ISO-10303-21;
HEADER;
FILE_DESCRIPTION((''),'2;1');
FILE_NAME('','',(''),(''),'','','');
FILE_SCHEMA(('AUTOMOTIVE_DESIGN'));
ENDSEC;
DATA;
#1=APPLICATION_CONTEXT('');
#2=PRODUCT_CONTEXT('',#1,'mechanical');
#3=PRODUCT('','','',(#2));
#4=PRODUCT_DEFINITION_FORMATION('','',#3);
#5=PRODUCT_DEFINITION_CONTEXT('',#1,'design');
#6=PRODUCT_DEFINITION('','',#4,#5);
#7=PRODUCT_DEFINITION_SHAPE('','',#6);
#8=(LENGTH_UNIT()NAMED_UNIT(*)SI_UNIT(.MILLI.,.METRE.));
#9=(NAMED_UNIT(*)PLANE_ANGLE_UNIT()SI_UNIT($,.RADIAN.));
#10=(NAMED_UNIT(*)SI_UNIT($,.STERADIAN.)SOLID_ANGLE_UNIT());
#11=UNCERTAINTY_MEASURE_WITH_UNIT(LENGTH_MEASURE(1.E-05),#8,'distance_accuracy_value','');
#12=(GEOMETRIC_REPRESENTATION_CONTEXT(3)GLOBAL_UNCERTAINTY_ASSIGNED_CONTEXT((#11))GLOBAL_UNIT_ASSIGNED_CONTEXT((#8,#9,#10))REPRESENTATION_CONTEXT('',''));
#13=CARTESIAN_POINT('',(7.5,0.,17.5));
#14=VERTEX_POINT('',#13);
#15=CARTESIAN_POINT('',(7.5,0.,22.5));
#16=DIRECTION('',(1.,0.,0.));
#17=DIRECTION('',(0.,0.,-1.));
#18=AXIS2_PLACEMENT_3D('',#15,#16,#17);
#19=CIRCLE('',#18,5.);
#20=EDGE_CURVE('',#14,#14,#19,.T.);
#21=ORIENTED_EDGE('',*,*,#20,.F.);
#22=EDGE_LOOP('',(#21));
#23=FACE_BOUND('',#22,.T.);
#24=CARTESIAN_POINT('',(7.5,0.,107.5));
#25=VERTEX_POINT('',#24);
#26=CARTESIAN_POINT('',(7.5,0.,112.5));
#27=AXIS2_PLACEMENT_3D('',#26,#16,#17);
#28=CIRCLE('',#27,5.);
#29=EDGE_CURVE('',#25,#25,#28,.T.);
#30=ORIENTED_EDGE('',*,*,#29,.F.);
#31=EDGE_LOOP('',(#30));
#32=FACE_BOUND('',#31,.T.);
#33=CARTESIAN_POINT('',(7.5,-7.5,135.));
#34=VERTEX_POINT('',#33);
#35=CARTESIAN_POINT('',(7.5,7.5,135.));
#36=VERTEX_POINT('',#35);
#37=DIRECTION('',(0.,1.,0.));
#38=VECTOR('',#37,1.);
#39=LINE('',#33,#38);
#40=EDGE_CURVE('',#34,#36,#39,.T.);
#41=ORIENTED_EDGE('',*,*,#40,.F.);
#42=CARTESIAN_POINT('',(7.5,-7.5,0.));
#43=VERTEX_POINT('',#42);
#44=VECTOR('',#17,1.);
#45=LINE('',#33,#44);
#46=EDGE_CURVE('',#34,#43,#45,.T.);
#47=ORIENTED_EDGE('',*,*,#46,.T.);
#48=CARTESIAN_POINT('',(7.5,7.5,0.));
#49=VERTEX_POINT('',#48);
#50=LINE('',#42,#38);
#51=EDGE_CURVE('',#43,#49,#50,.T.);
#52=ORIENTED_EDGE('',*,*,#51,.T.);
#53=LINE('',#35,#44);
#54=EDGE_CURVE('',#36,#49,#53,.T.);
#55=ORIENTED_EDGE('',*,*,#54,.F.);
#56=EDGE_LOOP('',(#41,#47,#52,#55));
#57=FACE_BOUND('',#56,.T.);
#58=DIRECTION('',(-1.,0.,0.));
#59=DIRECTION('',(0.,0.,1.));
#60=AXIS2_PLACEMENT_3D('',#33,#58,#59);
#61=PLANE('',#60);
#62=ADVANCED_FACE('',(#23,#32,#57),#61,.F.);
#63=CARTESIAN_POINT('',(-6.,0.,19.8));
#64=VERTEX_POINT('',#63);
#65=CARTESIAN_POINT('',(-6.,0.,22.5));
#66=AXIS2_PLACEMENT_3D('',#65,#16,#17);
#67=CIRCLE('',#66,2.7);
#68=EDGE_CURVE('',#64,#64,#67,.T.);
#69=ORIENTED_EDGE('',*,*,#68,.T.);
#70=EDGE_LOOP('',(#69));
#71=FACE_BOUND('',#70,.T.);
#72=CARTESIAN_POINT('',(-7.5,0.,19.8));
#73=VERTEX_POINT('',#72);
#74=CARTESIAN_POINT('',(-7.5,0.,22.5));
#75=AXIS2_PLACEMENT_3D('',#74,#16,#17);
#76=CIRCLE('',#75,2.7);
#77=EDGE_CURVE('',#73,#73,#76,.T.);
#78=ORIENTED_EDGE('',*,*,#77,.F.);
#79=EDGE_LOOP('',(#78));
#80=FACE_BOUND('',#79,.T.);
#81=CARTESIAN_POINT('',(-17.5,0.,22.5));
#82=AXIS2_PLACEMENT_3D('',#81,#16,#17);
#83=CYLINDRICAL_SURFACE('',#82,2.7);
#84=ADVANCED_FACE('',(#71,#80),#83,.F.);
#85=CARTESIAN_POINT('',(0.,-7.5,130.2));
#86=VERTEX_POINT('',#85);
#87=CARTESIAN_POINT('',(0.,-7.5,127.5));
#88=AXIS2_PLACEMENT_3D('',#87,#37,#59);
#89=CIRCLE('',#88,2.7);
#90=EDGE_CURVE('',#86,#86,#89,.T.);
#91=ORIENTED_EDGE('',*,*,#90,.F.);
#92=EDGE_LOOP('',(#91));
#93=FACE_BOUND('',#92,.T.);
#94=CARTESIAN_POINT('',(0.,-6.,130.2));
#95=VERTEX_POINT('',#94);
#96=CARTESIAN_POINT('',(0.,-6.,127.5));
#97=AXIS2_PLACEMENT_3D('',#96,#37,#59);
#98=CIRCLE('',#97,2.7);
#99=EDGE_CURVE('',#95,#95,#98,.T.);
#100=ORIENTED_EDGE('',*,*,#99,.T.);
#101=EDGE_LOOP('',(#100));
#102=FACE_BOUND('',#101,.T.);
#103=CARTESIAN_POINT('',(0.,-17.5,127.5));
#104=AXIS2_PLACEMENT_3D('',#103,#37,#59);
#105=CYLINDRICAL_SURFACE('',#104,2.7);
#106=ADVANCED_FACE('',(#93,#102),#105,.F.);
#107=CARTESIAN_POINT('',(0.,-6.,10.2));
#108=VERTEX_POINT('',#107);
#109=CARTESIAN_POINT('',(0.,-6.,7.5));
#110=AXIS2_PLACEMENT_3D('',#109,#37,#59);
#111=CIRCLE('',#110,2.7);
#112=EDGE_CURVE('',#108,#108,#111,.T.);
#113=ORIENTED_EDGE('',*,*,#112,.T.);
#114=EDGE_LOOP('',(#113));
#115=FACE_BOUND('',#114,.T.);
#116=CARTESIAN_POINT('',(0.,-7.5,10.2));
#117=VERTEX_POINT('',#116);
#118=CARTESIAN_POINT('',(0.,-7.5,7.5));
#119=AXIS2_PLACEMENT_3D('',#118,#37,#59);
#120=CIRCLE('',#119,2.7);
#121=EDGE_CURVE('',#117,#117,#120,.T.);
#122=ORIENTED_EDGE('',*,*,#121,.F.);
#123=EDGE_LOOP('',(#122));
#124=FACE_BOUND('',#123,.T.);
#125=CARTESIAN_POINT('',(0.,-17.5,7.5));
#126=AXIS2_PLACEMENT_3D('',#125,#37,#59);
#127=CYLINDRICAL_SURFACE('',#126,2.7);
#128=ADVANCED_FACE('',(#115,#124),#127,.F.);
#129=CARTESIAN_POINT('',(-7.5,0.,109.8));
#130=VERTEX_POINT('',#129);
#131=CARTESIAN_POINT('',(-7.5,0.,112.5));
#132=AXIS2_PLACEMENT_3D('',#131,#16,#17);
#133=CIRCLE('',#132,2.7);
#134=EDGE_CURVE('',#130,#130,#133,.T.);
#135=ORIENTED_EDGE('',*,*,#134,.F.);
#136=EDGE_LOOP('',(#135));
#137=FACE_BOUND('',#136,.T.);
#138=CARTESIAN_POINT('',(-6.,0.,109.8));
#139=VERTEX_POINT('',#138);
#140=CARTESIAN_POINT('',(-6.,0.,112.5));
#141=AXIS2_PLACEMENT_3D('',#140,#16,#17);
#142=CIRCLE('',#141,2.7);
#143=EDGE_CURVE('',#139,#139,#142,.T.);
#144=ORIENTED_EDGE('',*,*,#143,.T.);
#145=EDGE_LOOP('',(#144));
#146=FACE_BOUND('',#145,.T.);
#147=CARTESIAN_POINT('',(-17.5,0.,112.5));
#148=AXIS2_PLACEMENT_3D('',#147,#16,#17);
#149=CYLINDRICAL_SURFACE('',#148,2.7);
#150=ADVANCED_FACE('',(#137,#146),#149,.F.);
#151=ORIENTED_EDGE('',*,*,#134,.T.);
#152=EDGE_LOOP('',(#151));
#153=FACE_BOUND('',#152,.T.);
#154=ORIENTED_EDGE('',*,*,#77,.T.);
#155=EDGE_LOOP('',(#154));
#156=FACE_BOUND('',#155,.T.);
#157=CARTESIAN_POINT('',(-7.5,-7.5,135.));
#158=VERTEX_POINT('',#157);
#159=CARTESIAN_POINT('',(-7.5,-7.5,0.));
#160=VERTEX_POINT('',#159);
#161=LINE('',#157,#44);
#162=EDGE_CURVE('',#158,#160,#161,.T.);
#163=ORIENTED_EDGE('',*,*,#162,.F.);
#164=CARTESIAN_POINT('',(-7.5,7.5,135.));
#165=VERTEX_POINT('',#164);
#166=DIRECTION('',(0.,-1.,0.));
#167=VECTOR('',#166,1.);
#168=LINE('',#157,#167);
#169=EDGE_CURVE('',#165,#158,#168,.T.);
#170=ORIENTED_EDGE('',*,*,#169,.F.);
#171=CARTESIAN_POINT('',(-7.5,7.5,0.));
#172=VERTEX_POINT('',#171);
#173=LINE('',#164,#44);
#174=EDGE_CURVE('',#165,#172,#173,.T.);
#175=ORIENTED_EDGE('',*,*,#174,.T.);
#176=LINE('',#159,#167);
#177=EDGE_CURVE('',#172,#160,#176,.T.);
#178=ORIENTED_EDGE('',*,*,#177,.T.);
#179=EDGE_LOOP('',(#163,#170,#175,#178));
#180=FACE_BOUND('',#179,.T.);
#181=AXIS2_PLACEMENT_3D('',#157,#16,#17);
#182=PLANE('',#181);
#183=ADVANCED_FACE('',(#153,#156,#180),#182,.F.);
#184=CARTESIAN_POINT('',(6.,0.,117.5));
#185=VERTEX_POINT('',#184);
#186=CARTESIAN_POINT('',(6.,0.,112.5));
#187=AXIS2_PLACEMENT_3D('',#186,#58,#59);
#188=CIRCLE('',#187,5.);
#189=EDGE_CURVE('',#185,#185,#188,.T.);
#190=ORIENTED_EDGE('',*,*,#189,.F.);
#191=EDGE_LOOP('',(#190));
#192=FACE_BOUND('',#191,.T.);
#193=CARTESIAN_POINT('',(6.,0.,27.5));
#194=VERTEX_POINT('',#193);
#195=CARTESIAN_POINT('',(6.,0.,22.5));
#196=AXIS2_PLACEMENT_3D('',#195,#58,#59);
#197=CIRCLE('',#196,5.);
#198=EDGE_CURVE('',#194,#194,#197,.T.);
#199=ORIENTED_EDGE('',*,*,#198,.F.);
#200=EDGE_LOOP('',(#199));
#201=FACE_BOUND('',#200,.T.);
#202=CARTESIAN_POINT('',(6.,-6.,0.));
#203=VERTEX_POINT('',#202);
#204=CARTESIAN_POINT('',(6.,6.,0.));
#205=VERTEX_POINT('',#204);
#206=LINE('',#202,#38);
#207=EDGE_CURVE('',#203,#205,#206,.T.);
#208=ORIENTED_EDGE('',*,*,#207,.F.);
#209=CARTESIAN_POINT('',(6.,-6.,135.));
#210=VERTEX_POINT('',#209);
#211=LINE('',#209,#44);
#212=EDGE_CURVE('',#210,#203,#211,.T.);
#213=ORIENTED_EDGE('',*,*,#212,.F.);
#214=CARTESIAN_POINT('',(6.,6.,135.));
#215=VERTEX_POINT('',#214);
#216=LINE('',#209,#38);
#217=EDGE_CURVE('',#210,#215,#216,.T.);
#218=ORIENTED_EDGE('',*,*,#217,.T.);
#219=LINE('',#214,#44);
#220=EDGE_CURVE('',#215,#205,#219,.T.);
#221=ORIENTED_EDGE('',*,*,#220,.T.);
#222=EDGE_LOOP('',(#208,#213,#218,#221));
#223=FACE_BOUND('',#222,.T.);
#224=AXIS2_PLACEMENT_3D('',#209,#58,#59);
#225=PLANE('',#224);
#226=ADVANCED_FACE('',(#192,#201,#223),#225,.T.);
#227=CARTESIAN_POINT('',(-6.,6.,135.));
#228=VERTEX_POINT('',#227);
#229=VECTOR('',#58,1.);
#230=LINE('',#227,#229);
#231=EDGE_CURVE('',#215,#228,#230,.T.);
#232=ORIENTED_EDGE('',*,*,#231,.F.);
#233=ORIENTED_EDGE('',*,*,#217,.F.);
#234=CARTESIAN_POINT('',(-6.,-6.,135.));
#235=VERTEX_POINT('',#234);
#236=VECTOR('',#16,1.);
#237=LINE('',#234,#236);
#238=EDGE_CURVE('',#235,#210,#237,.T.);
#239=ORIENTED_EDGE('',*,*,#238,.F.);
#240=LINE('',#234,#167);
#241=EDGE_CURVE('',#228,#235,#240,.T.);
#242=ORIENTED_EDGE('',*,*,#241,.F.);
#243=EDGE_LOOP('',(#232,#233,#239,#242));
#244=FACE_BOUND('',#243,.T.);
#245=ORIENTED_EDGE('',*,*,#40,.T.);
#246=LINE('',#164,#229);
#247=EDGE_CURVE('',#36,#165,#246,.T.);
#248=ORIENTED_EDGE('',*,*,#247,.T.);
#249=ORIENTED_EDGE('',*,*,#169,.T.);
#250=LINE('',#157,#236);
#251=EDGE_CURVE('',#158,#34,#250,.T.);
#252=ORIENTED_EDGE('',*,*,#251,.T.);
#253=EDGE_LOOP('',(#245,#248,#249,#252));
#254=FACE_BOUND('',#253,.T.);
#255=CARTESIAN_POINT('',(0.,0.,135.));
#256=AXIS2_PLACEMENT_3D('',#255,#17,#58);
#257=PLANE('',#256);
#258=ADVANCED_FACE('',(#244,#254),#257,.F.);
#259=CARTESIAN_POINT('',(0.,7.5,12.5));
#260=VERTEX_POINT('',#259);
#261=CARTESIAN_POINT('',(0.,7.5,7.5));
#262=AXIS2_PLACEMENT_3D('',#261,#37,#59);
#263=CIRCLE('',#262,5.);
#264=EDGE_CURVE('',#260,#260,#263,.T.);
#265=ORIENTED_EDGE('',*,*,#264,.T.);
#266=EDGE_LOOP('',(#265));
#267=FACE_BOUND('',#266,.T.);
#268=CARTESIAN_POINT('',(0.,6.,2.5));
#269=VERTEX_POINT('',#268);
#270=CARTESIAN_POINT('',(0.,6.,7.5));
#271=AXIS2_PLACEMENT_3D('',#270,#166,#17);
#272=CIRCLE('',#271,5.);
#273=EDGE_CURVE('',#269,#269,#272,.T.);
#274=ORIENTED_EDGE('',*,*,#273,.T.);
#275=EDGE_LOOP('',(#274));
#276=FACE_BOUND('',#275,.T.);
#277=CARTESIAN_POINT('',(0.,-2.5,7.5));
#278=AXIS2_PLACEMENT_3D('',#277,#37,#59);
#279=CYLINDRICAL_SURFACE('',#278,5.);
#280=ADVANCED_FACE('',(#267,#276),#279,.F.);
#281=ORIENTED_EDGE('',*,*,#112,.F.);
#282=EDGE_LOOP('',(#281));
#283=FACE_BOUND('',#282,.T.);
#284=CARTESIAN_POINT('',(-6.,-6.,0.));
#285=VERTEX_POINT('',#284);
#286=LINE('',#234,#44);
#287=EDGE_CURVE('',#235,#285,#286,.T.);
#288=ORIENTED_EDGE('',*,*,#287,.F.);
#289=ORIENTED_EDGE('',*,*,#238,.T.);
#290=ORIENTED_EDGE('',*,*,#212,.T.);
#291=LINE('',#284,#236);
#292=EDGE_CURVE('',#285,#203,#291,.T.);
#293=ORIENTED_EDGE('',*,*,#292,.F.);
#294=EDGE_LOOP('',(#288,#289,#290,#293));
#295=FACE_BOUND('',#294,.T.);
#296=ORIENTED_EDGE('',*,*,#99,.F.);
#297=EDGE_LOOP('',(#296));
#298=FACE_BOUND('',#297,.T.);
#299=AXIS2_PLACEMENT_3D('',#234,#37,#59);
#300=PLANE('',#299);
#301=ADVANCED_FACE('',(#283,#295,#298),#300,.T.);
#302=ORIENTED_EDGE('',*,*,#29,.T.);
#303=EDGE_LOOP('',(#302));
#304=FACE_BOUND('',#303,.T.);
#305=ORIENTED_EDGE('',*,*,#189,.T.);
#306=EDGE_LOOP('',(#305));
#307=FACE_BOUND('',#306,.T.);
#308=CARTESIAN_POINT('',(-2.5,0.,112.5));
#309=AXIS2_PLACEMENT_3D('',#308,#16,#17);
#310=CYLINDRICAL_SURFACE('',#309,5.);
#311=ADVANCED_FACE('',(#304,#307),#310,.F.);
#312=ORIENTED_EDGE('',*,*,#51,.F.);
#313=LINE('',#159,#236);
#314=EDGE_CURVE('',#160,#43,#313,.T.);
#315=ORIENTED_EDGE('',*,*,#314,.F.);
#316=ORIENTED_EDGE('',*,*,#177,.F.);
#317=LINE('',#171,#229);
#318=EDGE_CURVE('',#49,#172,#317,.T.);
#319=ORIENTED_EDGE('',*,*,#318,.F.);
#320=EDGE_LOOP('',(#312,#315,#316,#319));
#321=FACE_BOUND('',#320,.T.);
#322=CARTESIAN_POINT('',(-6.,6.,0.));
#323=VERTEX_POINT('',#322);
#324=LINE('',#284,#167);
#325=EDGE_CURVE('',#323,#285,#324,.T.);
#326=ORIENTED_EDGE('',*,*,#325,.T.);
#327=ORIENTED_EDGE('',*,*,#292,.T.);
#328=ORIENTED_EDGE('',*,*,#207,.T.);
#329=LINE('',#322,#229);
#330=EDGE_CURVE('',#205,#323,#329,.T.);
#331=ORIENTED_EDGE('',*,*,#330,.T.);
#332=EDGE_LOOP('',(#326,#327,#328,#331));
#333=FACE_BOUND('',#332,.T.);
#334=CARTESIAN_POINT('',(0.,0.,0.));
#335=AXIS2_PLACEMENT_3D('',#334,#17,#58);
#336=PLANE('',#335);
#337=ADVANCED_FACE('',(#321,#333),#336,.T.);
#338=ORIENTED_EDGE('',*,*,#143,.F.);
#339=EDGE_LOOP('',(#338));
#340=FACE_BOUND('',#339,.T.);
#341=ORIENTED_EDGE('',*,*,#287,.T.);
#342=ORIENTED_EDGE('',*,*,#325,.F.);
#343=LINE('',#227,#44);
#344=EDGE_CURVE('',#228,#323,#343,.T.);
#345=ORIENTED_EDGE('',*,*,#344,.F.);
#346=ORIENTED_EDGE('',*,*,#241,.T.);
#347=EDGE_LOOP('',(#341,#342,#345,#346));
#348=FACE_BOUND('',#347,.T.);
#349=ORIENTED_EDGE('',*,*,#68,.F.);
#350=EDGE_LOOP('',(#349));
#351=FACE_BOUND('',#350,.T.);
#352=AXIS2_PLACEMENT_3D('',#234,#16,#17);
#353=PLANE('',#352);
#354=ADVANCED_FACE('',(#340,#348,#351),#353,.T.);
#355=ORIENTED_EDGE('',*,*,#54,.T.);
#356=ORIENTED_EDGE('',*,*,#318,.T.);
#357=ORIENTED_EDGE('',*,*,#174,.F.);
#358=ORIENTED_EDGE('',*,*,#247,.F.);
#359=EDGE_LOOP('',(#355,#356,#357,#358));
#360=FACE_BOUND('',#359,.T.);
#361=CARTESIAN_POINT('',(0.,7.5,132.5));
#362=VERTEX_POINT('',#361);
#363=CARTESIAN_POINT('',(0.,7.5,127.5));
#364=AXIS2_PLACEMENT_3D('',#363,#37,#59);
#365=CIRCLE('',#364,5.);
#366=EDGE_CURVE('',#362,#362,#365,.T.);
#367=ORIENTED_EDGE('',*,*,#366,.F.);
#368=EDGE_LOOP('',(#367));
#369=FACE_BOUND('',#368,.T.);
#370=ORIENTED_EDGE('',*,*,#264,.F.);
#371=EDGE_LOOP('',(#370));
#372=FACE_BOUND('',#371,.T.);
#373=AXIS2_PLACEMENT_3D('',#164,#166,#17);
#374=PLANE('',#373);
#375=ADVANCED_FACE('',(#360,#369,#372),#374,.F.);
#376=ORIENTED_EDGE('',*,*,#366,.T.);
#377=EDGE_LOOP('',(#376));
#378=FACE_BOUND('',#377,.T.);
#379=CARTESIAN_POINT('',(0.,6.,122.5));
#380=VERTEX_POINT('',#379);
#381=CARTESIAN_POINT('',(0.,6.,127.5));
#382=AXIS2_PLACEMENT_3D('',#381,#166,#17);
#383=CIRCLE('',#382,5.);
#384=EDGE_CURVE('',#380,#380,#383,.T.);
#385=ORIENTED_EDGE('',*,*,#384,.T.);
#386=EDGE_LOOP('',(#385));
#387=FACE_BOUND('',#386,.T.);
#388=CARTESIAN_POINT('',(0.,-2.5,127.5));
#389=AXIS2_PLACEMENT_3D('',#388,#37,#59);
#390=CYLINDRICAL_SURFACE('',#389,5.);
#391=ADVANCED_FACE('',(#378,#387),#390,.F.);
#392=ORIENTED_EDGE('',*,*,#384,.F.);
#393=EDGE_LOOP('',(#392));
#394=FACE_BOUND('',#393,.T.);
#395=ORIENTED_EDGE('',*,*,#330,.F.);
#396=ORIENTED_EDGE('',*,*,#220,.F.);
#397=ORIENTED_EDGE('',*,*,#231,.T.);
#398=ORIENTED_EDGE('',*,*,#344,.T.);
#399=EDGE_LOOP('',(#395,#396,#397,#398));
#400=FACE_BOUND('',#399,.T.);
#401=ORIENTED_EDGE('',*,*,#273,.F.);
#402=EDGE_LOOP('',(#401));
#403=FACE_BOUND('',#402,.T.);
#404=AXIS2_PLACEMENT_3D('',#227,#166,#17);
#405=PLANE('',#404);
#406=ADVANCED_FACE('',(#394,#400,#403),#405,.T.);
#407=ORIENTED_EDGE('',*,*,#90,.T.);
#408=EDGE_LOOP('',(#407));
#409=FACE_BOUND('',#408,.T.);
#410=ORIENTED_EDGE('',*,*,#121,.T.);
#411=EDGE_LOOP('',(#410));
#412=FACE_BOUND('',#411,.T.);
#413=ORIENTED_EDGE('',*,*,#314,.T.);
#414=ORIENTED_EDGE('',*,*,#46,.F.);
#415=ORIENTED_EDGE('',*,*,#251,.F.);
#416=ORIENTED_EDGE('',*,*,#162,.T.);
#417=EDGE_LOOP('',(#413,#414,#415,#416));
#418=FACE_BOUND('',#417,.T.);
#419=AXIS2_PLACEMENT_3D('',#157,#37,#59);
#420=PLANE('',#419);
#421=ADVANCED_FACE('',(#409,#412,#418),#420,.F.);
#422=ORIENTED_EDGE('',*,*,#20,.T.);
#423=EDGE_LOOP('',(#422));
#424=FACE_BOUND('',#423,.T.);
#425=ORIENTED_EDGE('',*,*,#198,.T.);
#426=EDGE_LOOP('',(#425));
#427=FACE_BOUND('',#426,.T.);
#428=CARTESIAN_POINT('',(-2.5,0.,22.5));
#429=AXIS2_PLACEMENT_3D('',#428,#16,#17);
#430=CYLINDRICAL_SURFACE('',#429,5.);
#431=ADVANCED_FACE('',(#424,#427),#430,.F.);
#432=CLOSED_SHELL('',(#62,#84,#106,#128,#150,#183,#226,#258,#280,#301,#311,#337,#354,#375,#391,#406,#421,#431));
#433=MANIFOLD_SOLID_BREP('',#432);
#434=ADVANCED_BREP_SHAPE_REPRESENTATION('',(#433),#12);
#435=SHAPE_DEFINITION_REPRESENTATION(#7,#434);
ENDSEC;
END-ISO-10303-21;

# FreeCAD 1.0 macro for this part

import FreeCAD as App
import Part
import Sketcher

V = App.Vector
Q = App.Units.Quantity


def add_polygon(sketch, points):
    """Adds a closed chain of lines whose ends are joined by coincident constraints."""
    first, n = sketch.GeometryCount, len(points)
    for a, b in zip(points, points[1:] + points[:1]):
        sketch.addGeometry(Part.LineSegment(App.Vector(*a, 0), App.Vector(*b, 0)), False)
    for i in range(n):
        sketch.addConstraint(Sketcher.Constraint("Coincident", first + i, 2, first + (i + 1) % n, 1))

doc = App.newDocument("Part")
body = doc.addObject("PartDesign::Body", "Body")

sketch1 = body.newObject("Sketcher::SketchObject", "Sketch")
sketch1.AttachmentSupport = (doc.getObject("XY_Plane"), [""])
sketch1.MapMode = "FlatFace"
add_polygon(sketch1, [(-8, 8), (-8, -8), (8, -8), (8, 8)])
add_polygon(sketch1, [(6, -6), (-6, -6), (-6, 6), (6, 6)])
sketch1.addConstraint([
    Sketcher.Constraint("Vertical", 0),
    Sketcher.Constraint("Horizontal", 1),
    Sketcher.Constraint("Vertical", 2),
    Sketcher.Constraint("Horizontal", 3),
    Sketcher.Constraint("Horizontal", 4),
    Sketcher.Constraint("Vertical", 5),
    Sketcher.Constraint("Horizontal", 6),
    Sketcher.Constraint("Vertical", 7),
    Sketcher.Constraint("Symmetric", 0, 2, 2, 2, -1, 1),
    Sketcher.Constraint("Symmetric", 4, 2, 6, 2, -1, 1),
    Sketcher.Constraint("Equal", 3, 0),
    Sketcher.Constraint("Equal", 6, 5),
    Sketcher.Constraint("DistanceX", 1, 1, 1, 2, Q("15 mm")),
    Sketcher.Constraint("DistanceX", 4, 2, 4, 1, Q("12 mm")),
])
pad1 = body.newObject("PartDesign::Pad", "Pad")
pad1.Profile = sketch1
pad1.Length = 135

sketch2 = body.newObject("Sketcher::SketchObject", "Sketch001")
sketch2.AttachmentSupport = (doc.getObject("YZ_Plane"), [""])
sketch2.MapMode = "FlatFace"
sketch2.AttachmentOffset = App.Placement(V(0, 0, 7.5), App.Rotation())
sketch2.addGeometry([
    Part.Circle(V(0, 112.5, 0), V(0, 0, 1), 2.7),
    Part.Circle(V(0, 22.5, 0), V(0, 0, 1), 2.7),
], False)
sketch2.addConstraint([
    Sketcher.Constraint("Equal", 0, 1),
    Sketcher.Constraint("PointOnObject", 0, 3, -2),
    Sketcher.Constraint("PointOnObject", 1, 3, -2),
    Sketcher.Constraint("Diameter", 0, Q("5.4 mm")),
    Sketcher.Constraint("DistanceY", 1, 3, 0, 3, Q("90 mm")),
    Sketcher.Constraint("DistanceY", -1, 1, 0, 3, Q("112.5 mm")),
])
pocket1 = body.newObject("PartDesign::Pocket", "Pocket")
pocket1.Profile = sketch2
pocket1.Length = 25

sketch3 = body.newObject("Sketcher::SketchObject", "Sketch002")
sketch3.AttachmentSupport = (doc.getObject("XZ_Plane"), [""])
sketch3.MapMode = "FlatFace"
sketch3.AttachmentOffset = App.Placement(V(0, 0, -7.5), App.Rotation())
sketch3.addGeometry([
    Part.Circle(V(0, 7.5, 0), V(0, 0, 1), 2.7),
    Part.Circle(V(0, 127.5, 0), V(0, 0, 1), 2.7),
], False)
sketch3.addConstraint([
    Sketcher.Constraint("Equal", 0, 1),
    Sketcher.Constraint("PointOnObject", 0, 3, -2),
    Sketcher.Constraint("PointOnObject", 1, 3, -2),
    Sketcher.Constraint("Diameter", 0, Q("5.4 mm")),
    Sketcher.Constraint("DistanceY", 0, 3, 1, 3, Q("120 mm")),
    Sketcher.Constraint("DistanceY", -1, 1, 0, 3, Q("7.5 mm")),
])
pocket2 = body.newObject("PartDesign::Pocket", "Pocket001")
pocket2.Profile = sketch3
pocket2.Length = 25
pocket2.Reversed = True

sketch4 = body.newObject("Sketcher::SketchObject", "Sketch003")
sketch4.AttachmentSupport = (doc.getObject("XZ_Plane"), [""])
sketch4.MapMode = "FlatFace"
sketch4.AttachmentOffset = App.Placement(V(0, 0, -7.5), App.Rotation())
sketch4.addGeometry([
    Part.Circle(V(0, 128, 0), V(0, 0, 1), 5),
    Part.Circle(V(0, 8, 0), V(0, 0, 1), 5),
], False)
sketch4.addConstraint([
    Sketcher.Constraint("Equal", 0, 1),
    Sketcher.Constraint("PointOnObject", 0, 3, -2),
    Sketcher.Constraint("PointOnObject", 1, 3, -2),
    Sketcher.Constraint("Diameter", 0, Q("10 mm")),
    Sketcher.Constraint("DistanceY", 1, 3, 0, 3, Q("120 mm")),
    Sketcher.Constraint("DistanceY", -1, 1, 0, 3, Q("127.5 mm")),
])
pocket3 = body.newObject("PartDesign::Pocket", "Pocket002")
pocket3.Profile = sketch4
pocket3.Length = 10
pocket3.Reversed = True

sketch5 = body.newObject("Sketcher::SketchObject", "Sketch004")
sketch5.AttachmentSupport = (doc.getObject("YZ_Plane"), [""])
sketch5.MapMode = "FlatFace"
sketch5.AttachmentOffset = App.Placement(V(0, 0, 7.5), App.Rotation())
sketch5.addGeometry([
    Part.Circle(V(0, 22, 0), V(0, 0, 1), 5),
    Part.Circle(V(0, 112, 0), V(0, 0, 1), 5),
], False)
sketch5.addConstraint([
    Sketcher.Constraint("Equal", 0, 1),
    Sketcher.Constraint("PointOnObject", 0, 3, -2),
    Sketcher.Constraint("PointOnObject", 1, 3, -2),
    Sketcher.Constraint("Diameter", 0, Q("10 mm")),
    Sketcher.Constraint("DistanceY", 0, 3, 1, 3, Q("90 mm")),
    Sketcher.Constraint("DistanceY", -1, 1, 0, 3, Q("22.5 mm")),
])
pocket4 = body.newObject("PartDesign::Pocket", "Pocket003")
pocket4.Profile = sketch5
pocket4.Length = 10

doc.recompute()
